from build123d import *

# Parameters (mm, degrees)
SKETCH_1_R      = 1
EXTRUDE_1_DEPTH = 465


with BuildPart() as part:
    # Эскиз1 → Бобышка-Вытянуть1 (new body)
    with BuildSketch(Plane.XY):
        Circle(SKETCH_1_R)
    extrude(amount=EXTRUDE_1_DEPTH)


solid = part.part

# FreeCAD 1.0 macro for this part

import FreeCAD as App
import Part
import Sketcher

V = App.Vector

doc = App.newDocument("Part")
body = doc.addObject("PartDesign::Body", "Body")

# Sketch on XY plane
sketch1 = body.newObject("Sketcher::SketchObject", "Sketch")
sketch1.AttachmentSupport = (doc.getObject("XY_Plane"), [""])
sketch1.MapMode = "FlatFace"
sketch1.addGeometry(Part.Circle(V(0, 0, 0), V(0, 0, 1), 1), False)
sketch1.addConstraint([
    Sketcher.Constraint("Coincident", 0, 3, -1, 1),
    Sketcher.Constraint("Diameter", 0, 2.0),
])
pad1 = body.newObject("PartDesign::Pad", "Pad")
pad1.Profile = sketch1
pad1.Length = 465

doc.recompute()
